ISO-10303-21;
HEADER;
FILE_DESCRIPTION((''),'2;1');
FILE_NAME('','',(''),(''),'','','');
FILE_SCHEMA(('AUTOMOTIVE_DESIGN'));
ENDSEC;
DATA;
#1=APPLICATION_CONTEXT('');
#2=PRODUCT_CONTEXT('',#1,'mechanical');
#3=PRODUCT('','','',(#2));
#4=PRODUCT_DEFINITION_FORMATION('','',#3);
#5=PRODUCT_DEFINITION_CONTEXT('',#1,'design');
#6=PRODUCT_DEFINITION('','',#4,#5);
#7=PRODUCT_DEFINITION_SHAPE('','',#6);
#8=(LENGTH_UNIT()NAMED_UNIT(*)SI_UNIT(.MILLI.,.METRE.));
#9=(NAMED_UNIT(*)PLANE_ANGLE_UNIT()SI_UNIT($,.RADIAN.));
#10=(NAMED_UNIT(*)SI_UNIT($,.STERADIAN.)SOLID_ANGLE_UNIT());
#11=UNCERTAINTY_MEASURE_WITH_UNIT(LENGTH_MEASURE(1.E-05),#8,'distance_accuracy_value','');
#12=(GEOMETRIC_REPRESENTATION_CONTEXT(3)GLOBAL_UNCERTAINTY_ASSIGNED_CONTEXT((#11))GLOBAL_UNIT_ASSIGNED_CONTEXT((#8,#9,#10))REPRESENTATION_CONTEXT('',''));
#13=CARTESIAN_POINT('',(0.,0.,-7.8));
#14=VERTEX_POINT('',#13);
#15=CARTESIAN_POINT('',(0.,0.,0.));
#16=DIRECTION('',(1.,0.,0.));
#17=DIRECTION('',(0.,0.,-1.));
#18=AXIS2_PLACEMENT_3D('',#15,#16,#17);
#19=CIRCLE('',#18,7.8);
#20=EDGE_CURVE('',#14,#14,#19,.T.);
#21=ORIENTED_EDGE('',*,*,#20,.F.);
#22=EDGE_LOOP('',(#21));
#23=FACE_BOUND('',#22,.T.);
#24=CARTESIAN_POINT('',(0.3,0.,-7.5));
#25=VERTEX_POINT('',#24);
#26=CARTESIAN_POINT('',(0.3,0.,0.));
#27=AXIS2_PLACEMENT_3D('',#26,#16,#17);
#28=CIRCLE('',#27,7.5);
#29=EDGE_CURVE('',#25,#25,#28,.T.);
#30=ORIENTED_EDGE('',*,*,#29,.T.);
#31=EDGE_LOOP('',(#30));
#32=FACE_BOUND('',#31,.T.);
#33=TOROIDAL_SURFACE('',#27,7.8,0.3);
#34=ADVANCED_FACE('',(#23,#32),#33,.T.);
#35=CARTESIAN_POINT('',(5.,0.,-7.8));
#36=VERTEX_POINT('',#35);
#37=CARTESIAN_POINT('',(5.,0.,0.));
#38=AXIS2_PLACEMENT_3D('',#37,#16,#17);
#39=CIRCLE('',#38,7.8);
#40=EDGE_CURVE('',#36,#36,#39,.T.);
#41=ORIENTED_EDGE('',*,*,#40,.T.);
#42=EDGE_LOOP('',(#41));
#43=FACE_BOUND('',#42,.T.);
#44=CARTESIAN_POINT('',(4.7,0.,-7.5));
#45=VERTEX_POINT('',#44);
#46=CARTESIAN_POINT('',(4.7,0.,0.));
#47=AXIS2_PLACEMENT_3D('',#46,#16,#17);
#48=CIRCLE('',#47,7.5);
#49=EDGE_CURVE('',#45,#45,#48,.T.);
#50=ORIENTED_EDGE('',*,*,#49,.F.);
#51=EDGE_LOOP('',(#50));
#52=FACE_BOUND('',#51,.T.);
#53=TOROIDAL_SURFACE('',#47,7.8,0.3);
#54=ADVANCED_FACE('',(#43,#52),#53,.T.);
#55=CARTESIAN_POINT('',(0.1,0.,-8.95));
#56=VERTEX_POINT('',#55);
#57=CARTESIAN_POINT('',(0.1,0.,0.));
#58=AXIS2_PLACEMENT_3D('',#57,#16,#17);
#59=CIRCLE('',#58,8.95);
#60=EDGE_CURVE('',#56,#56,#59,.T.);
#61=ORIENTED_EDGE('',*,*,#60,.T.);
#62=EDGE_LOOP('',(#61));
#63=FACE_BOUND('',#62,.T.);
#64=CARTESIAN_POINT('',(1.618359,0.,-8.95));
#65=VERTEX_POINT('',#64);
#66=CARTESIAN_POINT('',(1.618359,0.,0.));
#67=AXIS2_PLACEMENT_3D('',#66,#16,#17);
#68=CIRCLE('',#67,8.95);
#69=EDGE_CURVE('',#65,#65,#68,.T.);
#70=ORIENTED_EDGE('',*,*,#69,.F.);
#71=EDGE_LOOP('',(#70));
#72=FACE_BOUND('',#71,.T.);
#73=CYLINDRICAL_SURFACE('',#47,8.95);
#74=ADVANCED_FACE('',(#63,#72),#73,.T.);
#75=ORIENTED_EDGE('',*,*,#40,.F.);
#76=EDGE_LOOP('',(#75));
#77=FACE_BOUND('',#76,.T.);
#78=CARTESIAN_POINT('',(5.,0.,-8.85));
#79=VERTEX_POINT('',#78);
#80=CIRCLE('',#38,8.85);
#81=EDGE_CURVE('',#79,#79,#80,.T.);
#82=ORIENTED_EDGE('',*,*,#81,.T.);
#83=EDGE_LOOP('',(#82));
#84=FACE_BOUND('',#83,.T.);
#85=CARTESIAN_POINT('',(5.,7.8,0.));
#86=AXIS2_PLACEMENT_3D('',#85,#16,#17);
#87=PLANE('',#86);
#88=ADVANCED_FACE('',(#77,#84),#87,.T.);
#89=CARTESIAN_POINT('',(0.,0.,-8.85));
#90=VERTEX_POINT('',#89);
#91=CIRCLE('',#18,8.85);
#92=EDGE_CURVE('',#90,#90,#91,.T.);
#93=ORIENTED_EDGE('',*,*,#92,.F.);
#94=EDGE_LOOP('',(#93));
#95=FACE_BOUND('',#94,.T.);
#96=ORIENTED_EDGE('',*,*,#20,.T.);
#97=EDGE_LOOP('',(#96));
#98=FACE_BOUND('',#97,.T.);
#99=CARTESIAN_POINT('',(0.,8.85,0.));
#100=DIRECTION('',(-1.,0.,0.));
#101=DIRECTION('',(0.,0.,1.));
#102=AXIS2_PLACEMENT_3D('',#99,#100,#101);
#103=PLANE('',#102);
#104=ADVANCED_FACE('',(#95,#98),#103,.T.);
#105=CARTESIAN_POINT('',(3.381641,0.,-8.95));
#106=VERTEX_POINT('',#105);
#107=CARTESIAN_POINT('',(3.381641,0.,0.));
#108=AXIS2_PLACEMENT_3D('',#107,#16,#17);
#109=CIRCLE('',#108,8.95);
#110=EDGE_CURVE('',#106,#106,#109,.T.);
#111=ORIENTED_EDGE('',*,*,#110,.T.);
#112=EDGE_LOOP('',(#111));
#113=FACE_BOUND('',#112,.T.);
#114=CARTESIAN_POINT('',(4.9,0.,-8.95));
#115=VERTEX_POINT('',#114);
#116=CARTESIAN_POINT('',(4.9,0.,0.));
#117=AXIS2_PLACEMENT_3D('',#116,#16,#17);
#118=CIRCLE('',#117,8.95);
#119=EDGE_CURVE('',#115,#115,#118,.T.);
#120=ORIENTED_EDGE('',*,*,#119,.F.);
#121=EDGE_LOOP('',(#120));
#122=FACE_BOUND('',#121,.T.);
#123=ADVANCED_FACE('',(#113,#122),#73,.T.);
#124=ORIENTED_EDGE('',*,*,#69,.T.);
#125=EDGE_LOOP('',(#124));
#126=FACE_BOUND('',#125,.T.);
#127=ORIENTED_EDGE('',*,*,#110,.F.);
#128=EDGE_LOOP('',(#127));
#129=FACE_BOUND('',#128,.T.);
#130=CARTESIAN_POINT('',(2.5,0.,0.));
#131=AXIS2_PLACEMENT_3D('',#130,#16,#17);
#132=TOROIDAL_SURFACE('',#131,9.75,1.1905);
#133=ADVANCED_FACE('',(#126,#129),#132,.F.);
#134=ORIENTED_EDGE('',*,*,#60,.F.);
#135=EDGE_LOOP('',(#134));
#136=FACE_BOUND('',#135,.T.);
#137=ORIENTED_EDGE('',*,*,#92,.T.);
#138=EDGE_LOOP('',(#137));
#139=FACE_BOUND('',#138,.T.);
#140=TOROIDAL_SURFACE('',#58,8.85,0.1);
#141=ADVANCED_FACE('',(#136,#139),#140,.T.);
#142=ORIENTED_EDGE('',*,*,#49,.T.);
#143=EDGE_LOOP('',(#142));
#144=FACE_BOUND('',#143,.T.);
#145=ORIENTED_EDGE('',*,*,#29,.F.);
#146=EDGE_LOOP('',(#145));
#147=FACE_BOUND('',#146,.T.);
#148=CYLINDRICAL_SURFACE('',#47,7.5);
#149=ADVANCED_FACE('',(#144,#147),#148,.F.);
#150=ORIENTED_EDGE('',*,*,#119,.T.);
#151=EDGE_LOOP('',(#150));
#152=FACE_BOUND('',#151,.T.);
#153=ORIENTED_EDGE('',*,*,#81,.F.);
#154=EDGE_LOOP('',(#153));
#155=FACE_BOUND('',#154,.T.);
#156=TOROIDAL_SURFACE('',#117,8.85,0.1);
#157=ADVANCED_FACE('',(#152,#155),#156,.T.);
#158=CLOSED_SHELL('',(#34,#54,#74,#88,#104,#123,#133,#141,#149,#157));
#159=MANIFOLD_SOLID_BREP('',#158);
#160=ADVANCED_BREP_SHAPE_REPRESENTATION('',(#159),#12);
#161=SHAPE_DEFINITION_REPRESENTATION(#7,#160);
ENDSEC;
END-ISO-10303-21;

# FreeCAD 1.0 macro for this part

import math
import FreeCAD as App
import Part
import Sketcher

V = App.Vector

doc = App.newDocument("Part")
body = doc.addObject("PartDesign::Body", "Body")

sketch1 = doc.addObject("Sketcher::SketchObject", "Sketch")
body.addObject(sketch1)
sketch1.AttachmentSupport = (doc.XY_Plane, [""])
sketch1.MapMode = "FlatFace"
sketch1.addGeometry([
    Part.LineSegment(V(0.3, 7.5, 0), V(4.7, 7.5, 0)),
    Part.ArcOfCircle(Part.Circle(V(4.7, 7.8, 0), V(0, 0, 1), 0.3), math.radians(-90), math.radians(0)),
    Part.LineSegment(V(5, 7.8, 0), V(5, 8.85, 0)),
    Part.ArcOfCircle(Part.Circle(V(4.9, 8.85, 0), V(0, 0, 1), 0.1), math.radians(0), math.radians(90)),
    Part.LineSegment(V(4.9, 8.95, 0), V(3.381641, 8.95, 0)),
    Part.ArcOfCircle(Part.Circle(V(2.5, 9.75, 0), V(0, 0, 1), 1.1905), math.radians(-137.779426), math.radians(-42.220574)),
    Part.LineSegment(V(1.618359, 8.95, 0), V(0.1, 8.95, 0)),
    Part.ArcOfCircle(Part.Circle(V(0.1, 8.85, 0), V(0, 0, 1), 0.1), math.radians(90), math.radians(180)),
    Part.LineSegment(V(0, 8.85, 0), V(0, 7.8, 0)),
    Part.ArcOfCircle(Part.Circle(V(0.3, 7.8, 0), V(0, 0, 1), 0.3), math.radians(-180), math.radians(-90)),
], False)
sketch1.addConstraint([
    Sketcher.Constraint("Tangent", 0, 2, 1, 1),
    Sketcher.Constraint("Tangent", 1, 2, 2, 1),
    Sketcher.Constraint("Tangent", 2, 2, 3, 1),
    Sketcher.Constraint("Tangent", 3, 2, 4, 1),
    Sketcher.Constraint("Coincident", 4, 2, 5, 2),
    Sketcher.Constraint("Coincident", 5, 1, 6, 1),
    Sketcher.Constraint("Tangent", 6, 2, 7, 1),
    Sketcher.Constraint("Tangent", 7, 2, 8, 1),
    Sketcher.Constraint("Tangent", 8, 2, 9, 1),
    Sketcher.Constraint("Tangent", 9, 2, 0, 1),
    Sketcher.Constraint("Horizontal", 0),
    Sketcher.Constraint("Vertical", 2),
    Sketcher.Constraint("Horizontal", 4),
    Sketcher.Constraint("Horizontal", 6),
    Sketcher.Constraint("Vertical", 8),
    Sketcher.Constraint("Equal", 3, 7),
    Sketcher.Constraint("Equal", 1, 9),
    Sketcher.Constraint("PointOnObject", 7, 2, -2),
    Sketcher.Constraint("Horizontal", 3, 3, 7, 3),
    Sketcher.Constraint("Equal", 4, 6),
    Sketcher.Constraint("Radius", 1, 0.3),
    Sketcher.Constraint("Radius", 3, 0.1),
    Sketcher.Constraint("DistanceX", 0, 1, 0, 2, 4.4),
    Sketcher.Constraint("DistanceY", 2, 1, 2, 2, 1.05),
    Sketcher.Constraint("DistanceY", -1, 1, 1, 3, 7.8),
    Sketcher.Constraint("Radius", 5, 1.1905),
    Sketcher.Constraint("DistanceY", 3, 3, 5, 3, 0.9),
])
revolution = doc.addObject("PartDesign::Revolution", "Revolution")
body.addObject(revolution)
revolution.Profile = sketch1
revolution.ReferenceAxis = (sketch1, ["H_Axis"])
revolution.Angle = 360

doc.recompute()
